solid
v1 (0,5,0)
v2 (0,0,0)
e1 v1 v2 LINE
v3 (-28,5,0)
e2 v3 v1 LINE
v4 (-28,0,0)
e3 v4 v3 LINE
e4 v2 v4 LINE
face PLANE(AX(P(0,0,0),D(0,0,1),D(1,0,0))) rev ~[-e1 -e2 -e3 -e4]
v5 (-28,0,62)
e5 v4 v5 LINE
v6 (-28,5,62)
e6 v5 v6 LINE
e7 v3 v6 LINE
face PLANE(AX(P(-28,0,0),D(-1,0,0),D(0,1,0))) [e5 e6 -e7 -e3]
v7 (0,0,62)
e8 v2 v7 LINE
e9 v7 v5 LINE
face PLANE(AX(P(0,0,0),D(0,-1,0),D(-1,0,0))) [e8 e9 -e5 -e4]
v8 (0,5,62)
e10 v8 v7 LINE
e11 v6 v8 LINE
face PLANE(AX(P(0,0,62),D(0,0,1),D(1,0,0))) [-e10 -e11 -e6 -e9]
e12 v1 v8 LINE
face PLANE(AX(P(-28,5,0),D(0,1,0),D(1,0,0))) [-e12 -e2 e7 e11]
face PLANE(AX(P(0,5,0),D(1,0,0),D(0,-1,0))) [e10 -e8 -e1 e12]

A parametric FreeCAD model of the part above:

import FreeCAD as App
import Part
import Sketcher
from FreeCAD import Vector


def add_polygon(sketch, points):
    """Adds a closed chain of lines whose ends are joined by coincident constraints."""
    first, n = sketch.GeometryCount, len(points)
    for a, b in zip(points, points[1:] + points[:1]):
        sketch.addGeometry(Part.LineSegment(App.Vector(*a, 0), App.Vector(*b, 0)), False)
    for i in range(n):
        sketch.addConstraint(Sketcher.Constraint("Coincident", first + i, 2, first + (i + 1) % n, 1))

doc = App.newDocument("Part")
body = doc.addObject("PartDesign::Body", "Body")

sketch1 = doc.addObject("Sketcher::SketchObject", "Sketch")
body.addObject(sketch1)
sketch1.AttachmentSupport = (doc.XY_Plane, [""])
sketch1.MapMode = "FlatFace"
add_polygon(sketch1, [(-28, 0), (0, 0), (0, 5), (-28, 5)])
sketch1.addConstraint(Sketcher.Constraint("Horizontal", 0))
sketch1.addConstraint(Sketcher.Constraint("Vertical", 1))
sketch1.addConstraint(Sketcher.Constraint("Horizontal", 2))
sketch1.addConstraint(Sketcher.Constraint("Vertical", 3))
sketch1.addConstraint(Sketcher.Constraint("Coincident", 0, 2, -1, 1))
sketch1.addConstraint(Sketcher.Constraint("DistanceX", 0, 1, 0, 2, 28.0))
sketch1.addConstraint(Sketcher.Constraint("DistanceY", 1, 1, 1, 2, 5.0))
pad1 = doc.addObject("PartDesign::Pad", "Pad")
body.addObject(pad1)
pad1.Profile = sketch1
pad1.Length = 62

doc.recompute()
